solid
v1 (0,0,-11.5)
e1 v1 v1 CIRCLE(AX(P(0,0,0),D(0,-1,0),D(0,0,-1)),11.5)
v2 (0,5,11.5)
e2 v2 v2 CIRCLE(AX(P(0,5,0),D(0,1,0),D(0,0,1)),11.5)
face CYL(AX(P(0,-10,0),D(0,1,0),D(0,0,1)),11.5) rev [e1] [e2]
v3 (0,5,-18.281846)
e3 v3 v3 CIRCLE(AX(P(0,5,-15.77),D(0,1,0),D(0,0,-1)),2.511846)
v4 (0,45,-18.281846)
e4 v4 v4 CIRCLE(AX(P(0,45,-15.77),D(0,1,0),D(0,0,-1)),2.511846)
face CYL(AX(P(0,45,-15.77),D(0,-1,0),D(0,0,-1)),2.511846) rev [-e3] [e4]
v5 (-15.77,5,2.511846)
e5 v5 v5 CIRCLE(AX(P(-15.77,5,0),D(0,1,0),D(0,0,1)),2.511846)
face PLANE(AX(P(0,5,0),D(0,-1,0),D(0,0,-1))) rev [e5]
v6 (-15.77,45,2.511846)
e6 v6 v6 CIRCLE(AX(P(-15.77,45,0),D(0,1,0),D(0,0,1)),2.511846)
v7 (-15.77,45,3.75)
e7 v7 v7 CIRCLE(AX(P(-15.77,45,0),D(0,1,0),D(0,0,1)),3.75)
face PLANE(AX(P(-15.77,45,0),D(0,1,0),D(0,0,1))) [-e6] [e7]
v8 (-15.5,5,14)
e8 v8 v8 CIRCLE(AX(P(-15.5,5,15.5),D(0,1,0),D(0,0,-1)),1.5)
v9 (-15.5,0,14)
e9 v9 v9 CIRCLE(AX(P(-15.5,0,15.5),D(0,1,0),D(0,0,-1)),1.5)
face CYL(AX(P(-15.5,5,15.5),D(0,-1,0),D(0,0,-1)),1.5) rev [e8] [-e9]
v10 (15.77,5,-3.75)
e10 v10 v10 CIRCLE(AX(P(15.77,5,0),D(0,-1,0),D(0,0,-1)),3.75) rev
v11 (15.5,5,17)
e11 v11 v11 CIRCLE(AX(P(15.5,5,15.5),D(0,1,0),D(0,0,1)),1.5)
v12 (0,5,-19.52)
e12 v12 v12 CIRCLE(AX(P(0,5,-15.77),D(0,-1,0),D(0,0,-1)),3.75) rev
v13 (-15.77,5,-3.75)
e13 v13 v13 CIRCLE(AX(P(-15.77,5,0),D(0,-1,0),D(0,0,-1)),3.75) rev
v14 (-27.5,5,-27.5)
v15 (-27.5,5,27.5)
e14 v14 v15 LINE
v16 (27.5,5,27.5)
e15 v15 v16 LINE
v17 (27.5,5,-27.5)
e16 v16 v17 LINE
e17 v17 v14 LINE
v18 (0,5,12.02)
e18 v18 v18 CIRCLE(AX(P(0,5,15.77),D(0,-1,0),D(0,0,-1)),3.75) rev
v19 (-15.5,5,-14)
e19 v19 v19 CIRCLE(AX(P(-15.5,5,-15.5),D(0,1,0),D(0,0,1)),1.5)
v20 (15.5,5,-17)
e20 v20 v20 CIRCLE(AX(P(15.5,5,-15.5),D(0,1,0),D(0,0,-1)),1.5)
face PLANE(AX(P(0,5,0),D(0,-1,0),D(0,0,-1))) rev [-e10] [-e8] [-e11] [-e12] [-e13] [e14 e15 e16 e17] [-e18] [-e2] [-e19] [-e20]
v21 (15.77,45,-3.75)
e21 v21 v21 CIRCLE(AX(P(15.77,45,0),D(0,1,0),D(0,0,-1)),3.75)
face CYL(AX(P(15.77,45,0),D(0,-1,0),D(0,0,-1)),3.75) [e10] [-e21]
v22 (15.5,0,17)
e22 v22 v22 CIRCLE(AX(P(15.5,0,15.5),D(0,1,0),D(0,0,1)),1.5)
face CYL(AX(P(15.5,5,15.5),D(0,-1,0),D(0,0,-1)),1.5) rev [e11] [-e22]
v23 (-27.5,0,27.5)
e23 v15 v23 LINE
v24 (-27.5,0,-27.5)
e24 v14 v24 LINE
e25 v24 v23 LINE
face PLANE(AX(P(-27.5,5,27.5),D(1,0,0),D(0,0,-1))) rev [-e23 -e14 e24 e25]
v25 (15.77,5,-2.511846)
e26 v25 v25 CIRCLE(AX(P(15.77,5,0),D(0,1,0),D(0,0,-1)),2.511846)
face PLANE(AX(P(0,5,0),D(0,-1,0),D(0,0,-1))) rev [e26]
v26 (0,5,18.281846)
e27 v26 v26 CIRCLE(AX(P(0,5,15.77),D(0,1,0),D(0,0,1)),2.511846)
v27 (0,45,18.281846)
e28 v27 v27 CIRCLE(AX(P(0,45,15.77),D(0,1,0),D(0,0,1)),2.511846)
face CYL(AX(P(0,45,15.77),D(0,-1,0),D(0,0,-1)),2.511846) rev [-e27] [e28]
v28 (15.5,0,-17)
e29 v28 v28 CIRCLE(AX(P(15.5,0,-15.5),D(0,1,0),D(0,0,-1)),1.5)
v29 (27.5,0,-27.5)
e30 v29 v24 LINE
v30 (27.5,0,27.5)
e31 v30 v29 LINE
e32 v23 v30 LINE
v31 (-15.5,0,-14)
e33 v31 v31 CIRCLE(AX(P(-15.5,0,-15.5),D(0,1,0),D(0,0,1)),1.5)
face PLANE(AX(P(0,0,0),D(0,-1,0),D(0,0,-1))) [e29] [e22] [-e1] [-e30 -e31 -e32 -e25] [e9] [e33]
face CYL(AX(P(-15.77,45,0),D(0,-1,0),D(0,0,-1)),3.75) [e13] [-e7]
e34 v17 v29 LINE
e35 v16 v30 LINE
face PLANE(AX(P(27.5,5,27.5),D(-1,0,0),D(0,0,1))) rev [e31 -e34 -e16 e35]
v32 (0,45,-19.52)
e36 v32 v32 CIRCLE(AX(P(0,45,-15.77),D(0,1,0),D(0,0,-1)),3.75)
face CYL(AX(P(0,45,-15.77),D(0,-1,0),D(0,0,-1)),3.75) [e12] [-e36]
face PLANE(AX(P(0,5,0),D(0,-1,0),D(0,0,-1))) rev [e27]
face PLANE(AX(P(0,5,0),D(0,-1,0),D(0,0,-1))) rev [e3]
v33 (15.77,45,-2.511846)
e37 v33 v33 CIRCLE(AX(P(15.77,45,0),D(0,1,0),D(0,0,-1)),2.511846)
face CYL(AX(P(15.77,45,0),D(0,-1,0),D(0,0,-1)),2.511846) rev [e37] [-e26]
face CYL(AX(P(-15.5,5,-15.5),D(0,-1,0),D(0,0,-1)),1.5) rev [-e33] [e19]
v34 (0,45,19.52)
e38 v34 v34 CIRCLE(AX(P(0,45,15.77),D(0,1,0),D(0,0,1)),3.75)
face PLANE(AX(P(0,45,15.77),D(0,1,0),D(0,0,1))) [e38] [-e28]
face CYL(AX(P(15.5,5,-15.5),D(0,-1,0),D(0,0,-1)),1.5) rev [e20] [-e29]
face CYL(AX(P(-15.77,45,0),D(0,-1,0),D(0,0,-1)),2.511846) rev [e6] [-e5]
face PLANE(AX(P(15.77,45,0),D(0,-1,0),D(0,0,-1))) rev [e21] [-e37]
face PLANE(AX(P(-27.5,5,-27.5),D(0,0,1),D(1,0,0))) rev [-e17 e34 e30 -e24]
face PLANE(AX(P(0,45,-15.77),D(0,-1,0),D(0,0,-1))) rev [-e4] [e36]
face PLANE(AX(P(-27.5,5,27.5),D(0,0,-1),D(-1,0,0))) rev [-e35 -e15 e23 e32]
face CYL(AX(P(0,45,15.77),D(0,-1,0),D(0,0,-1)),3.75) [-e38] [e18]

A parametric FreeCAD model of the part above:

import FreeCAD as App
import Part
import Sketcher

V = App.Vector
Q = App.Units.Quantity


def add_polygon(sketch, points):
    """Adds a closed chain of lines whose ends are joined by coincident constraints."""
    first, n = sketch.GeometryCount, len(points)
    for a, b in zip(points, points[1:] + points[:1]):
        sketch.addGeometry(Part.LineSegment(App.Vector(*a, 0), App.Vector(*b, 0)), False)
    for i in range(n):
        sketch.addConstraint(Sketcher.Constraint("Coincident", first + i, 2, first + (i + 1) % n, 1))

doc = App.newDocument("Part")
params = doc.addObject("Spreadsheet::Sheet", "Params")
for row, (alias, value) in enumerate([
    ("sketch1_diameter", "3 mm"),
    ("sketch1_width", "55 mm"),
    ("pad1_length", "5 mm"),
    ("sketch2_diameter", "7.5 mm"),
    ("pad2_length", "40 mm"),
    ("sketch3_diameter", "23 mm"),
    ("pocket1_length", "15 mm"),
], start=1):
    params.set(f"A{row}", alias)
    params.set(f"B{row}", "=" + value)
    params.setAlias(f"B{row}", alias)

body = doc.addObject("PartDesign::Body", "Body")

sketch1 = body.newObject("Sketcher::SketchObject", "Sketch")
sketch1.AttachmentSupport = (doc.getObject("XZ_Plane"), [""])
sketch1.MapMode = "FlatFace"
add_polygon(sketch1, [(-27.5, -27.5), (-27.5, 27.5), (27.5, 27.5), (27.5, -27.5)])
sketch1.addGeometry(Part.Circle(V(-15.5, 15.5, 0), V(0, 0, 1), 1.5), False)
sketch1.addGeometry(Part.Circle(V(15.5, 15.5, 0), V(0, 0, 1), 1.5), False)
sketch1.addGeometry(Part.Circle(V(-15.5, -15.5, 0), V(0, 0, 1), 1.5), False)
sketch1.addGeometry(Part.Circle(V(15.5, -15.5, 0), V(0, 0, 1), 1.5), False)
sketch1.addConstraint(Sketcher.Constraint("Vertical", 0))
sketch1.addConstraint(Sketcher.Constraint("Horizontal", 1))
sketch1.addConstraint(Sketcher.Constraint("Vertical", 2))
sketch1.addConstraint(Sketcher.Constraint("Horizontal", 3))
sketch1.addConstraint(Sketcher.Constraint("Equal", 4, 5))
sketch1.addConstraint(Sketcher.Constraint("Equal", 5, 6))
sketch1.addConstraint(Sketcher.Constraint("Equal", 6, 7))
sketch1.addConstraint(Sketcher.Constraint("Symmetric", 5, 3, 6, 3, -1, 1))
sketch1.addConstraint(Sketcher.Constraint("Symmetric", 4, 3, 7, 3, -1, 1))
sketch1.addConstraint(Sketcher.Constraint("Symmetric", 0, 2, 2, 2, -1, 1))
sketch1.addConstraint(Sketcher.Constraint("Symmetric", 4, 3, 5, 3, -2))
sketch1.addConstraint(Sketcher.Constraint("Equal", 3, 0))
sketch1.addConstraint(Sketcher.Constraint("Diameter", 4, Q("3 mm")))
sketch1.addConstraint(Sketcher.Constraint("DistanceX", 1, 1, 1, 2, Q("55 mm")))
sketch1.addConstraint(Sketcher.Constraint("DistanceX", 4, 3, 5, 3, Q("31 mm")))
sketch1.addConstraint(Sketcher.Constraint("DistanceY", 6, 3, 4, 3, Q("31 mm")))
sketch1.setExpression("Constraints[16]", "Params.sketch1_diameter")
sketch1.setExpression("Constraints[17]", "Params.sketch1_width")
pad1 = body.newObject("PartDesign::Pad", "Pad")
pad1.Profile = sketch1
pad1.setExpression("Length", "Params.pad1_length")
pad1.Reversed = True

sketch2 = body.newObject("Sketcher::SketchObject", "Sketch001")
sketch2.AttachmentSupport = (doc.getObject("XZ_Plane"), [""])
sketch2.MapMode = "FlatFace"
sketch2.AttachmentOffset = App.Placement(V(0, 0, -5), App.Rotation())
sketch2.addGeometry(Part.Circle(V(-15.8, 0, 0), V(0, 0, 1), 3.8), False)
sketch2.addGeometry(Part.Circle(V(-15.8, 0, 0), V(0, 0, 1), 2.5), False)
sketch2.addGeometry(Part.Circle(V(15.8, 0, 0), V(0, 0, 1), 3.8), False)
sketch2.addGeometry(Part.Circle(V(15.8, 0, 0), V(0, 0, 1), 2.5), False)
sketch2.addGeometry(Part.Circle(V(0, 15.8, 0), V(0, 0, 1), 3.8), False)
sketch2.addGeometry(Part.Circle(V(0, 15.8, 0), V(0, 0, 1), 2.5), False)
sketch2.addGeometry(Part.Circle(V(0, -15.8, 0), V(0, 0, 1), 3.8), False)
sketch2.addGeometry(Part.Circle(V(0, -15.8, 0), V(0, 0, 1), 2.5), False)
sketch2.addConstraint(Sketcher.Constraint("Coincident", 1, 3, 0, 3))
sketch2.addConstraint(Sketcher.Constraint("Coincident", 3, 3, 2, 3))
sketch2.addConstraint(Sketcher.Constraint("Coincident", 5, 3, 4, 3))
sketch2.addConstraint(Sketcher.Constraint("Coincident", 7, 3, 6, 3))
sketch2.addConstraint(Sketcher.Constraint("Equal", 0, 2))
sketch2.addConstraint(Sketcher.Constraint("Equal", 1, 3))
sketch2.addConstraint(Sketcher.Constraint("Equal", 2, 4))
sketch2.addConstraint(Sketcher.Constraint("Equal", 3, 5))
sketch2.addConstraint(Sketcher.Constraint("Equal", 4, 6))
sketch2.addConstraint(Sketcher.Constraint("Equal", 5, 7))
sketch2.addConstraint(Sketcher.Constraint("Symmetric", 0, 3, 2, 3, -1, 1))
sketch2.addConstraint(Sketcher.Constraint("Symmetric", 4, 3, 6, 3, -1, 1))
sketch2.addConstraint(Sketcher.Constraint("PointOnObject", 0, 3, -1))
sketch2.addConstraint(Sketcher.Constraint("PointOnObject", 4, 3, -2))
sketch2.addConstraint(Sketcher.Constraint("Diameter", 0, Q("7.5 mm")))
sketch2.addConstraint(Sketcher.Constraint("Diameter", 1, Q("5.023692 mm")))
sketch2.addConstraint(Sketcher.Constraint("DistanceX", 0, 3, -1, 1, Q("15.77 mm")))
sketch2.addConstraint(Sketcher.Constraint("DistanceY", -1, 1, 4, 3, Q("15.77 mm")))
sketch2.setExpression("Constraints[14]", "Params.sketch2_diameter")
pad2 = body.newObject("PartDesign::Pad", "Pad001")
pad2.Profile = sketch2
pad2.setExpression("Length", "Params.pad2_length")
pad2.Reversed = True

sketch3 = body.newObject("Sketcher::SketchObject", "Sketch002")
sketch3.AttachmentSupport = (doc.getObject("XZ_Plane"), [""])
sketch3.MapMode = "FlatFace"
sketch3.AttachmentOffset = App.Placement(V(0, 0, -5), App.Rotation())
sketch3.addGeometry(Part.Circle(V(0, 0, 0), V(0, 0, 1), 12), False)
sketch3.addConstraint(Sketcher.Constraint("Coincident", 0, 3, -1, 1))
sketch3.addConstraint(Sketcher.Constraint("Diameter", 0, Q("23 mm")))
sketch3.setExpression("Constraints[1]", "Params.sketch3_diameter")
pocket1 = body.newObject("PartDesign::Pocket", "Pocket")
pocket1.Profile = sketch3
pocket1.setExpression("Length", "Params.pocket1_length")
pocket1.Reversed = True

doc.recompute()
